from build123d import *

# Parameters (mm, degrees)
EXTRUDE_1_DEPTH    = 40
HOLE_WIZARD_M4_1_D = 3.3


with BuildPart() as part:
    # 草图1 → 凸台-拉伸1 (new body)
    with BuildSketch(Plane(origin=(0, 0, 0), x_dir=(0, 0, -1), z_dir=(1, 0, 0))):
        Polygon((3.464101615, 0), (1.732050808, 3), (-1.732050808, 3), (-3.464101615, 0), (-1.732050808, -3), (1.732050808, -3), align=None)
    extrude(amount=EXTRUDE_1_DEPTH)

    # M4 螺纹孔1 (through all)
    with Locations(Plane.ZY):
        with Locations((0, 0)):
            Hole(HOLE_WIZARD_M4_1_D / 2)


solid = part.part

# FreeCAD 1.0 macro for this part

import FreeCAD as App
import Part
import Sketcher
from FreeCAD import Vector
Q = App.Units.Quantity


def add_polygon(sketch, points):
    """Adds a closed chain of lines whose ends are joined by coincident constraints."""
    first, n = sketch.GeometryCount, len(points)
    for a, b in zip(points, points[1:] + points[:1]):
        sketch.addGeometry(Part.LineSegment(App.Vector(*a, 0), App.Vector(*b, 0)), False)
    for i in range(n):
        sketch.addConstraint(Sketcher.Constraint("Coincident", first + i, 2, first + (i + 1) % n, 1))

doc = App.newDocument("Part")
body = doc.addObject("PartDesign::Body", "Body")

# Sketch on YZ plane
sketch1 = body.newObject("Sketcher::SketchObject", "Sketch")
sketch1.AttachmentSupport = (doc.getObject("YZ_Plane"), [""])
sketch1.MapMode = "FlatFace"
add_polygon(sketch1, [(0, -3.5), (3, -1.7), (3, 1.7), (0, 3.5), (-3, 1.7), (-3, -1.7)])  # lines 0-5
sketch1.addConstraint(Sketcher.Constraint("Vertical", 1))
sketch1.addConstraint(Sketcher.Constraint("Vertical", 4))
sketch1.addConstraint(Sketcher.Constraint("Symmetric", 0, 2, 3, 2, -1, 1))
sketch1.addConstraint(Sketcher.Constraint("Symmetric", 2, 2, 5, 2, -1, 1))
sketch1.addConstraint(Sketcher.Constraint("PointOnObject", 2, 2, -2))
sketch1.addConstraint(Sketcher.Constraint("Parallel", 2, 5))
sketch1.addConstraint(Sketcher.Constraint("Horizontal", 1, 2, 3, 2))
sketch1.addConstraint(Sketcher.Constraint("Angle", 0, Q("30 deg")))
sketch1.addConstraint(Sketcher.Constraint("DistanceX", -1, 1, 0, 2, Q("3 mm")))
sketch1.addConstraint(Sketcher.Constraint("DistanceY", 1, 1, 1, 2, Q("3.464102 mm")))
pad1 = body.newObject("PartDesign::Pad", "Pad")
pad1.Profile = sketch1
pad1.Length = 40

# Sketch on YZ plane
sketch2 = body.newObject("Sketcher::SketchObject", "Sketch001")
sketch2.AttachmentSupport = (doc.getObject("YZ_Plane"), [""])
sketch2.MapMode = "FlatFace"
sketch2.addGeometry(Part.Circle(Vector(0, 0, 0), Vector(0, 0, 1), 1.6), False)
sketch2.addConstraint(Sketcher.Constraint("Coincident", 0, 3, -1, 1))
sketch2.addConstraint(Sketcher.Constraint("Diameter", 0, Q("3.3 mm")))
doc.recompute()
hole = body.newObject("PartDesign::Hole", "Hole")
hole.Profile = sketch2
hole.ThreadType = "None"
hole.Diameter = 3.3
hole.DepthType = "ThroughAll"
hole.Reversed = True

doc.recompute()
